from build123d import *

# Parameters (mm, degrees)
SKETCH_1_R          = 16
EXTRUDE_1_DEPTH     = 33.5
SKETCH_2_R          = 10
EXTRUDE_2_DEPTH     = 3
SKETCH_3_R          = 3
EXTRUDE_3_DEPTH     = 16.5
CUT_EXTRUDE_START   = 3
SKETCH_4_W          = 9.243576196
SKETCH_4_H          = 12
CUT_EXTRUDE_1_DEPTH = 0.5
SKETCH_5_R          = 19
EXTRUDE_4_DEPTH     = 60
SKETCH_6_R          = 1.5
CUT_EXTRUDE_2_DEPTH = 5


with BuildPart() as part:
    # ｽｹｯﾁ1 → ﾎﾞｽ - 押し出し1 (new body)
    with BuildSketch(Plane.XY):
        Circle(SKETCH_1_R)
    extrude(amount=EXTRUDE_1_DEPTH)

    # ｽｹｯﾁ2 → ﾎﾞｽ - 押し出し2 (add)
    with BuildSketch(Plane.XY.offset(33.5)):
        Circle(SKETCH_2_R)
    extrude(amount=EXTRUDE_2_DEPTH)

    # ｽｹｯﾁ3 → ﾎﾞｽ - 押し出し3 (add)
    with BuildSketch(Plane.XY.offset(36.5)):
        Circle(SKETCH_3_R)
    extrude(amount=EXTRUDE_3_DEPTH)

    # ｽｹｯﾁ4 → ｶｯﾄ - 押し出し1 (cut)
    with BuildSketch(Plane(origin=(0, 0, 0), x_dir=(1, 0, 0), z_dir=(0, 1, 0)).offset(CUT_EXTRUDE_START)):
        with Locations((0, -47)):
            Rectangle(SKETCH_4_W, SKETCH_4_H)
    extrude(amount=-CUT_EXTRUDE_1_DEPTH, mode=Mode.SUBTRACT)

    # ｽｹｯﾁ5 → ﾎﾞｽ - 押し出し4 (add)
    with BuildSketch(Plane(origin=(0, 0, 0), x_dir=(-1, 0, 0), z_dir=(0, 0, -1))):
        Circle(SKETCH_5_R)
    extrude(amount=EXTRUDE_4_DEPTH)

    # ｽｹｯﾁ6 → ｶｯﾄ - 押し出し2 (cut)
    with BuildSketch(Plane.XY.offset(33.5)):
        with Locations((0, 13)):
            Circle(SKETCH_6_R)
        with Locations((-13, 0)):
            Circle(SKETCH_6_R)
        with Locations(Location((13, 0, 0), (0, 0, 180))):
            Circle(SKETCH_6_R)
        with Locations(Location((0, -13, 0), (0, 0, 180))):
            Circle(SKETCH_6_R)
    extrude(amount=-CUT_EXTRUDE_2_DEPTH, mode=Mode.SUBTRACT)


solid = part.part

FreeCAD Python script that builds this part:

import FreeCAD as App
import Part
import Sketcher
from FreeCAD import Vector
Q = App.Units.Quantity


def add_polygon(sketch, points):
    """Adds a closed chain of lines whose ends are joined by coincident constraints."""
    first, n = sketch.GeometryCount, len(points)
    for a, b in zip(points, points[1:] + points[:1]):
        sketch.addGeometry(Part.LineSegment(App.Vector(*a, 0), App.Vector(*b, 0)), False)
    for i in range(n):
        sketch.addConstraint(Sketcher.Constraint("Coincident", first + i, 2, first + (i + 1) % n, 1))

doc = App.newDocument("Part")
body = doc.addObject("PartDesign::Body", "Body")

# Sketch on XY plane
sketch1 = body.newObject("Sketcher::SketchObject", "Sketch")
sketch1.AttachmentSupport = (doc.getObject("XY_Plane"), [""])
sketch1.MapMode = "FlatFace"
sketch1.addGeometry(Part.Circle(Vector(0, 0, 0), Vector(0, 0, 1), 16), False)
sketch1.addConstraint([
    Sketcher.Constraint("Coincident", 0, 3, -1, 1),
    Sketcher.Constraint("Diameter", 0, Q("32 mm")),
])
pad1 = body.newObject("PartDesign::Pad", "Pad")
pad1.Profile = sketch1
pad1.Length = 33.5

# Sketch on XY plane
sketch2 = body.newObject("Sketcher::SketchObject", "Sketch001")
sketch2.AttachmentSupport = (doc.getObject("XY_Plane"), [""])
sketch2.MapMode = "FlatFace"
sketch2.AttachmentOffset = App.Placement(Vector(0, 0, 33.5), App.Rotation())
sketch2.addGeometry(Part.Circle(Vector(0, 0, 0), Vector(0, 0, 1), 10), False)
sketch2.addConstraint([
    Sketcher.Constraint("Coincident", 0, 3, -1, 1),
    Sketcher.Constraint("Diameter", 0, Q("20 mm")),
])
pad2 = body.newObject("PartDesign::Pad", "Pad001")
pad2.Profile = sketch2
pad2.Length = 3

# Sketch on XY plane
sketch3 = body.newObject("Sketcher::SketchObject", "Sketch002")
sketch3.AttachmentSupport = (doc.getObject("XY_Plane"), [""])
sketch3.MapMode = "FlatFace"
sketch3.AttachmentOffset = App.Placement(Vector(0, 0, 36.5), App.Rotation())
sketch3.addGeometry(Part.Circle(Vector(0, 0, 0), Vector(0, 0, 1), 3), False)
sketch3.addConstraint([
    Sketcher.Constraint("Coincident", 0, 3, -1, 1),
    Sketcher.Constraint("Diameter", 0, Q("6 mm")),
])
pad3 = body.newObject("PartDesign::Pad", "Pad002")
pad3.Profile = sketch3
pad3.Length = 16.5

# Sketch on XZ plane
sketch4 = body.newObject("Sketcher::SketchObject", "Sketch003")
sketch4.AttachmentSupport = (doc.getObject("XZ_Plane"), [""])
sketch4.MapMode = "FlatFace"
sketch4.AttachmentOffset = App.Placement(Vector(0, 0, -3), App.Rotation())
add_polygon(sketch4, [(-5, 41), (-5, 53), (5, 53), (5, 41)])  # lines 0-3
sketch4.addConstraint([
    Sketcher.Constraint("Vertical", 0),
    Sketcher.Constraint("Horizontal", 1),
    Sketcher.Constraint("Vertical", 2),
    Sketcher.Constraint("Horizontal", 3),
    Sketcher.Constraint("DistanceY", 0, 1, 0, 2, Q("12 mm")),
    Sketcher.Constraint("DistanceY", -1, 1, 0, 2, Q("53 mm")),
    Sketcher.Constraint("DistanceX", 1, 1, 1, 2, Q("9.243576 mm")),
    Sketcher.Constraint("DistanceX", 0, 2, -1, 1, Q("4.621788 mm")),
])
pocket1 = body.newObject("PartDesign::Pocket", "Pocket")
pocket1.Profile = sketch4
pocket1.Length = 0.5
pocket1.Reversed = True

# Sketch on XY plane
sketch5 = body.newObject("Sketcher::SketchObject", "Sketch004")
sketch5.AttachmentSupport = (doc.getObject("XY_Plane"), [""])
sketch5.MapMode = "FlatFace"
sketch5.addGeometry(Part.Circle(Vector(0, 0, 0), Vector(0, 0, 1), 19), False)
sketch5.addConstraint([
    Sketcher.Constraint("Coincident", 0, 3, -1, 1),
    Sketcher.Constraint("Diameter", 0, Q("38 mm")),
])
pad4 = body.newObject("PartDesign::Pad", "Pad003")
pad4.Profile = sketch5
pad4.Length = 60
pad4.Reversed = True

# Sketch on XY plane
sketch6 = body.newObject("Sketcher::SketchObject", "Sketch005")
sketch6.AttachmentSupport = (doc.getObject("XY_Plane"), [""])
sketch6.MapMode = "FlatFace"
sketch6.AttachmentOffset = App.Placement(Vector(0, 0, 33.5), App.Rotation())
sketch6.addGeometry([
    Part.Circle(Vector(0, 13, 0), Vector(0, 0, 1), 1.5),
    Part.Circle(Vector(-13, 0, 0), Vector(0, 0, 1), 1.5),
    Part.Circle(Vector(13, 0, 0), Vector(0, 0, 1), 1.5),
    Part.Circle(Vector(0, -13, 0), Vector(0, 0, 1), 1.5),
], False)
sketch6.addConstraint([
    Sketcher.Constraint("Equal", 0, 1),
    Sketcher.Constraint("Equal", 1, 2),
    Sketcher.Constraint("Equal", 2, 3),
    Sketcher.Constraint("Symmetric", 1, 3, 2, 3, -1, 1),
    Sketcher.Constraint("Symmetric", 0, 3, 3, 3, -1, 1),
    Sketcher.Constraint("PointOnObject", 0, 3, -2),
    Sketcher.Constraint("PointOnObject", 1, 3, -1),
    Sketcher.Constraint("Diameter", 0, Q("3 mm")),
    Sketcher.Constraint("DistanceY", -1, 1, 0, 3, Q("13 mm")),
    Sketcher.Constraint("DistanceX", 1, 3, -1, 1, Q("13 mm")),
])
pocket2 = body.newObject("PartDesign::Pocket", "Pocket001")
pocket2.Profile = sketch6
pocket2.Length = 5

doc.recompute()
